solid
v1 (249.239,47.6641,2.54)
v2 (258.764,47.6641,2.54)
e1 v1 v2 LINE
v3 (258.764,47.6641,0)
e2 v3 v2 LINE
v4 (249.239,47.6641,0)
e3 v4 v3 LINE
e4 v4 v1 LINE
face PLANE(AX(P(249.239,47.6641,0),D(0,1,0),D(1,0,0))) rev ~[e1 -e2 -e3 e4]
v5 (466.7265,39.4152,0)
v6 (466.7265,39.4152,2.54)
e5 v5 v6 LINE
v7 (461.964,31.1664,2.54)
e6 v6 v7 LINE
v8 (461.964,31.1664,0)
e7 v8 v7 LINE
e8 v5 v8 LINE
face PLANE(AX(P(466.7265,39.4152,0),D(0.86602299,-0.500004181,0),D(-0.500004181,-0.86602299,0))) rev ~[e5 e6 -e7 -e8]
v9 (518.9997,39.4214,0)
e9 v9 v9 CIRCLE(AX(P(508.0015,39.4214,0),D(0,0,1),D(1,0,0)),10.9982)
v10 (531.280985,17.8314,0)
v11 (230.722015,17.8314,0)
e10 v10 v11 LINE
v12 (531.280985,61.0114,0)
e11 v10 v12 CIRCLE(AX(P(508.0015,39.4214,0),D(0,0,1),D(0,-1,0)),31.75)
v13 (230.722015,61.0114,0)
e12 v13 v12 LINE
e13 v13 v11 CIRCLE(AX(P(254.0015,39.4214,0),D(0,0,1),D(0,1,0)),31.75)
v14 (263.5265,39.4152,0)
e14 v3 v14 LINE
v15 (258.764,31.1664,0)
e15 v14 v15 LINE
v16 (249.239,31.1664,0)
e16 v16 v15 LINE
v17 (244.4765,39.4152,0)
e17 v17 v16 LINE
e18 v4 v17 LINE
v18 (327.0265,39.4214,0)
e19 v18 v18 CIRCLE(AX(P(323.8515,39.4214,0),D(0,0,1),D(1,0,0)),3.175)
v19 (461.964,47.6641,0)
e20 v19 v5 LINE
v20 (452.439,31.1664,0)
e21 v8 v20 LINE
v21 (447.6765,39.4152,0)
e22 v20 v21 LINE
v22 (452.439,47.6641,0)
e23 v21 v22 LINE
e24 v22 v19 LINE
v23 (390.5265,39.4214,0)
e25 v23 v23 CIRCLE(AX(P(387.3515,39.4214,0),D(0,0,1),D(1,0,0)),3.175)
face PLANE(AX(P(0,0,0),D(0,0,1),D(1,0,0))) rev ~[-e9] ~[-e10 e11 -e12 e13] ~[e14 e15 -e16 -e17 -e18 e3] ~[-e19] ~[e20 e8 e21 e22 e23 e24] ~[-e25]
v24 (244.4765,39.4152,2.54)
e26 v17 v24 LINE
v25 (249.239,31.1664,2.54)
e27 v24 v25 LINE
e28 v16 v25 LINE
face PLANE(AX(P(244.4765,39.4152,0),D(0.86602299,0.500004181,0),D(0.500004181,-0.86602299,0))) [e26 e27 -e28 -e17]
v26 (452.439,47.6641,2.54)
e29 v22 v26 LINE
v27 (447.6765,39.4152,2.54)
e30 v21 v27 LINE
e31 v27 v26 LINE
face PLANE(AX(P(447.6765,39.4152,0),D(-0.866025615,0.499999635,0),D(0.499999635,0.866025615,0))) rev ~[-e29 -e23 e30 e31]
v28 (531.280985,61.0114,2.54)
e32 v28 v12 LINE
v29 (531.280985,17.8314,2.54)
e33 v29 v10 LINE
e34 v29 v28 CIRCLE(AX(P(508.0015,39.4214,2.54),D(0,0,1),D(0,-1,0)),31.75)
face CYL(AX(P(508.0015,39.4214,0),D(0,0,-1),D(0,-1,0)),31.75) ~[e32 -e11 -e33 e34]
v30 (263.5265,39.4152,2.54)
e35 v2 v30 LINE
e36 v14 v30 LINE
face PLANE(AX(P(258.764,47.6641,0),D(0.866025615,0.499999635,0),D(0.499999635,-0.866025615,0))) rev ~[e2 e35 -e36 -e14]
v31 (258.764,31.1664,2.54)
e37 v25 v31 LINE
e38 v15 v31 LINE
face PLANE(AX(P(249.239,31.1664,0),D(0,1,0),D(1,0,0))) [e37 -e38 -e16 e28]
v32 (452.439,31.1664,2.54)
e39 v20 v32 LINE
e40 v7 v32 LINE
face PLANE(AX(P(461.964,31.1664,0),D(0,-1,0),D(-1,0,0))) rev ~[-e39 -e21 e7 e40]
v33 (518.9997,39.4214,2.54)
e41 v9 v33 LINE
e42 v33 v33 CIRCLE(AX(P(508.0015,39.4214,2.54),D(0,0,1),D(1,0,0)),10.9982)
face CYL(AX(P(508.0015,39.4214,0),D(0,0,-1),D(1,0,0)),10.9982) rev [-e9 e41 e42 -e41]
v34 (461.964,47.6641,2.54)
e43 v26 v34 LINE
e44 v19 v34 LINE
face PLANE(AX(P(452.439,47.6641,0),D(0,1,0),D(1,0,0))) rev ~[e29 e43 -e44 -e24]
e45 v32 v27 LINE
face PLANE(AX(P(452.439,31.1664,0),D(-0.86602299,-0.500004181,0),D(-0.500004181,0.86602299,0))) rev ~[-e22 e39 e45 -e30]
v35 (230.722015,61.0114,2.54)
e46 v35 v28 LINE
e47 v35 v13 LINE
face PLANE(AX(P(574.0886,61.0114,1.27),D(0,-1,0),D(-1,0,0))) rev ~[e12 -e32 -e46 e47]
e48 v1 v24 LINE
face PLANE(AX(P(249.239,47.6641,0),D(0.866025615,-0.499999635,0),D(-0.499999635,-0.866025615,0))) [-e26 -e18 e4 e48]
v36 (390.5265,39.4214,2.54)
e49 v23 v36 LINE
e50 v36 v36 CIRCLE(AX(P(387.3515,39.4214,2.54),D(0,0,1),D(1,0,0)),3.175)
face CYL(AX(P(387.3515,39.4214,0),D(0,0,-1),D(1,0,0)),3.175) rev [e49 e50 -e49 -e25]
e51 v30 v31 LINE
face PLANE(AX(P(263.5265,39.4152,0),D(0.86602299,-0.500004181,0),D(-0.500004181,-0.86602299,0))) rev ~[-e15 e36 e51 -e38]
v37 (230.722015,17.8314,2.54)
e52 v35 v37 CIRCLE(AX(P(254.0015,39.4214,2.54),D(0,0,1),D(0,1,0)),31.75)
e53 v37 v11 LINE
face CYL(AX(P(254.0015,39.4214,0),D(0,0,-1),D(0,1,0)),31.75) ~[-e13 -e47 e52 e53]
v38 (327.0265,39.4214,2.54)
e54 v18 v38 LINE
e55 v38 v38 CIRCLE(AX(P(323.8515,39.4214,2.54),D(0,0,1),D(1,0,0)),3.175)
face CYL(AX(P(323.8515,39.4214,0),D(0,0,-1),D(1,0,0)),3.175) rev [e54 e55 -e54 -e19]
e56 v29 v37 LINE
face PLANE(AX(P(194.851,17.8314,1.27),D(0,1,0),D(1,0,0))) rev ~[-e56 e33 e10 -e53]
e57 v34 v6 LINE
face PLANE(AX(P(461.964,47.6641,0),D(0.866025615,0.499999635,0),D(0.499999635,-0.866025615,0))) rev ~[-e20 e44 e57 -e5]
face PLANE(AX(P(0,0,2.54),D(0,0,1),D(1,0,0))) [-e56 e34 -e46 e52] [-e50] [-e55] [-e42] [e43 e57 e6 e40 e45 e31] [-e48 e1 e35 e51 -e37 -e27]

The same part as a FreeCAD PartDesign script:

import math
import FreeCAD as App
import Part
import Sketcher
Q = App.Units.Quantity

doc = App.newDocument("Part")
body = doc.addObject("PartDesign::Body", "Body")

# Sketch on XY plane
sketch1 = body.newObject("Sketcher::SketchObject", "Sketch")
sketch1.AttachmentSupport = (doc.getObject("XY_Plane"), [""])
sketch1.MapMode = "FlatFace"
sketch1.addGeometry([
    Part.ArcOfCircle(Part.Circle(App.Vector(508.0015, 39.4214, 0), App.Vector(0, 0, 1), 31.75), math.radians(-90), math.radians(90)),  # 0
    Part.LineSegment(App.Vector(508.0015, 71.1714, 0), App.Vector(254.0015, 71.1714, 0)),  # 1
    Part.ArcOfCircle(Part.Circle(App.Vector(254.0015, 39.4214, 0), App.Vector(0, 0, 1), 31.75), math.radians(90), math.radians(270)),  # 2
    Part.LineSegment(App.Vector(254.0015, 7.6714, 0), App.Vector(508.0015, 7.6714, 0)),  # 3
    Part.LineSegment(App.Vector(244.4765, 39.4152, 0), App.Vector(249.239, 47.6641, 0)),  # 4
    Part.LineSegment(App.Vector(249.239, 47.6641, 0), App.Vector(258.764, 47.6641, 0)),  # 5
    Part.LineSegment(App.Vector(258.764, 47.6641, 0), App.Vector(263.5265, 39.4152, 0)),  # 6
    Part.LineSegment(App.Vector(263.5265, 39.4152, 0), App.Vector(258.764, 31.1664, 0)),  # 7
    Part.LineSegment(App.Vector(258.764, 31.1664, 0), App.Vector(249.239, 31.1664, 0)),  # 8
    Part.LineSegment(App.Vector(249.239, 31.1664, 0), App.Vector(244.4765, 39.4152, 0)),  # 9
    Part.LineSegment(App.Vector(447.6765, 39.4152, 0), App.Vector(452.439, 47.6641, 0)),  # 10
    Part.LineSegment(App.Vector(452.439, 47.6641, 0), App.Vector(461.964, 47.6641, 0)),  # 11
    Part.LineSegment(App.Vector(461.964, 47.6641, 0), App.Vector(466.7265, 39.4152, 0)),  # 12
    Part.LineSegment(App.Vector(466.7265, 39.4152, 0), App.Vector(461.964, 31.1664, 0)),  # 13
    Part.LineSegment(App.Vector(461.964, 31.1664, 0), App.Vector(452.439, 31.1664, 0)),  # 14
    Part.LineSegment(App.Vector(452.439, 31.1664, 0), App.Vector(447.6765, 39.4152, 0)),  # 15
    Part.Circle(App.Vector(323.8515, 39.4214, 0), App.Vector(0, 0, 1), 3.175),  # 16
    Part.Circle(App.Vector(387.3515, 39.4214, 0), App.Vector(0, 0, 1), 3.175),  # 17
    Part.Circle(App.Vector(508.0015, 39.4214, 0), App.Vector(0, 0, 1), 10.9982),  # 18
], False)
sketch1.addConstraint([
    Sketcher.Constraint("Tangent", 0, 2, 1, 1),
    Sketcher.Constraint("Tangent", 1, 2, 2, 1),
    Sketcher.Constraint("Tangent", 2, 2, 3, 1),
    Sketcher.Constraint("Tangent", 3, 2, 0, 1),
    Sketcher.Constraint("Coincident", 4, 2, 5, 1),
    Sketcher.Constraint("Coincident", 5, 2, 6, 1),
    Sketcher.Constraint("Coincident", 6, 2, 7, 1),
    Sketcher.Constraint("Coincident", 7, 2, 8, 1),
    Sketcher.Constraint("Coincident", 8, 2, 9, 1),
    Sketcher.Constraint("Coincident", 9, 2, 4, 1),
    Sketcher.Constraint("Coincident", 10, 2, 11, 1),
    Sketcher.Constraint("Coincident", 11, 2, 12, 1),
    Sketcher.Constraint("Coincident", 12, 2, 13, 1),
    Sketcher.Constraint("Coincident", 13, 2, 14, 1),
    Sketcher.Constraint("Coincident", 14, 2, 15, 1),
    Sketcher.Constraint("Coincident", 15, 2, 10, 1),
    Sketcher.Constraint("Horizontal", 1),
    Sketcher.Constraint("Horizontal", 3),
    Sketcher.Constraint("Horizontal", 5),
    Sketcher.Constraint("Horizontal", 8),
    Sketcher.Constraint("Horizontal", 11),
    Sketcher.Constraint("Horizontal", 14),
    Sketcher.Constraint("Coincident", 18, 3, 0, 3),
    Sketcher.Constraint("Equal", 16, 17),
    Sketcher.Constraint("Parallel", 4, 7),
    Sketcher.Constraint("Parallel", 6, 9),
    Sketcher.Constraint("Parallel", 7, 10),
    Sketcher.Constraint("Parallel", 9, 12),
    Sketcher.Constraint("Parallel", 10, 13),
    Sketcher.Constraint("Parallel", 12, 15),
    Sketcher.Constraint("Horizontal", 2, 3, 16, 3),
    Sketcher.Constraint("Horizontal", 16, 3, 17, 3),
    Sketcher.Constraint("Horizontal", 6, 2, 9, 2),
    Sketcher.Constraint("Horizontal", 5, 2, 10, 2),
    Sketcher.Constraint("Horizontal", 9, 2, 12, 2),
    Sketcher.Constraint("Horizontal", 8, 2, 13, 2),
    Sketcher.Constraint("Horizontal", 12, 2, 15, 2),
    Sketcher.Constraint("Vertical", 5, 2, 7, 2),
    Sketcher.Constraint("Vertical", 4, 2, 8, 2),
    Sketcher.Constraint("Equal", 8, 11),
    Sketcher.Constraint("Diameter", 16, Q("0.25 in")),
    Sketcher.Constraint("DistanceX", 1, 2, 1, 1, Q("10 in")),
    Sketcher.Constraint("Radius", 0, Q("1.25 in")),
    Sketcher.Constraint("Diameter", 18, Q("0.866 in")),
    Sketcher.Constraint("Angle", 7, Q("-120.0003 deg")),
    Sketcher.Constraint("DistanceX", 16, 3, 17, 3, Q("2.5 in")),
    Sketcher.Constraint("DistanceX", 5, 1, 5, 2, Q("0.375 in")),
    Sketcher.Constraint("DistanceX", 2, 3, 16, 3, Q("2.75 in")),
    Sketcher.Constraint("Distance", 4, Q("0.375 in")),
    Sketcher.Constraint("DistanceX", 2, 3, 6, 2, Q("0.375 in")),
    Sketcher.Constraint("DistanceY", 7, 2, 2, 3, Q("0.325 in")),
    Sketcher.Constraint("DistanceX", 10, 2, 0, 3, Q("2.1875 in")),
    Sketcher.Constraint("DistanceX", -1, 1, 0, 3, Q("508.0015 mm")),
    Sketcher.Constraint("DistanceY", -1, 1, 0, 3, Q("39.4214 mm")),
])
pad1 = body.newObject("PartDesign::Pad", "Pad")
pad1.Profile = sketch1
pad1.Length = Q("0.1 in")

# Sketch on XY plane
sketch2 = body.newObject("Sketcher::SketchObject", "Sketch001")
sketch2.AttachmentSupport = (doc.getObject("XY_Plane"), [""])
sketch2.MapMode = "FlatFace"
sketch2.AttachmentOffset = App.Placement(App.Vector(0, 0, 0.05 * 25.4), App.Rotation())
sketch2.addGeometry([
    Part.LineSegment(App.Vector(574.0886, 111.8114, 0), App.Vector(193.0886, 111.8114, 0)),  # 0
    Part.LineSegment(App.Vector(193.0886, 111.8114, 0), App.Vector(193.0886, 61.0114, 0)),  # 1
    Part.LineSegment(App.Vector(193.0886, 61.0114, 0), App.Vector(574.0886, 61.0114, 0)),  # 2
    Part.LineSegment(App.Vector(574.0886, 61.0114, 0), App.Vector(574.0886, 111.8114, 0)),  # 3
    Part.LineSegment(App.Vector(575.851, 17.8314, 0), App.Vector(194.851, 17.8314, 0)),  # 4
    Part.LineSegment(App.Vector(194.851, 17.8314, 0), App.Vector(194.851, -32.9686, 0)),  # 5
    Part.LineSegment(App.Vector(194.851, -32.9686, 0), App.Vector(575.851, -32.9686, 0)),  # 6
    Part.LineSegment(App.Vector(575.851, -32.9686, 0), App.Vector(575.851, 17.8314, 0)),  # 7
], False)
sketch2.addConstraint([
    Sketcher.Constraint("Coincident", 0, 2, 1, 1),
    Sketcher.Constraint("Coincident", 1, 2, 2, 1),
    Sketcher.Constraint("Coincident", 2, 2, 3, 1),
    Sketcher.Constraint("Coincident", 3, 2, 0, 1),
    Sketcher.Constraint("Coincident", 4, 2, 5, 1),
    Sketcher.Constraint("Coincident", 5, 2, 6, 1),
    Sketcher.Constraint("Coincident", 6, 2, 7, 1),
    Sketcher.Constraint("Coincident", 7, 2, 4, 1),
    Sketcher.Constraint("Horizontal", 0),
    Sketcher.Constraint("Vertical", 1),
    Sketcher.Constraint("Horizontal", 2),
    Sketcher.Constraint("Vertical", 3),
    Sketcher.Constraint("Horizontal", 4),
    Sketcher.Constraint("Vertical", 5),
    Sketcher.Constraint("Horizontal", 6),
    Sketcher.Constraint("Vertical", 7),
    Sketcher.Constraint("Equal", 2, 4),
    Sketcher.Constraint("Equal", 3, 5),
    Sketcher.Constraint("DistanceX", 0, 2, 0, 1, Q("15 in")),
    Sketcher.Constraint("DistanceY", 1, 2, 1, 1, Q("2 in")),
    Sketcher.Constraint("DistanceY", 4, 2, 1, 2, Q("1.7 in")),
    Sketcher.Constraint("DistanceX", -1, 1, 4, 2, Q("7.6713 in")),
    Sketcher.Constraint("DistanceX", -1, 1, 0, 2, Q("193.0886 mm")),
    Sketcher.Constraint("DistanceY", -1, 1, 0, 2, Q("111.8114 mm")),
])
pocket1 = body.newObject("PartDesign::Pocket", "Pocket")
pocket1.Profile = sketch2
pocket1.Length = Q("1 in")
pocket1.Midplane = True

doc.recompute()
